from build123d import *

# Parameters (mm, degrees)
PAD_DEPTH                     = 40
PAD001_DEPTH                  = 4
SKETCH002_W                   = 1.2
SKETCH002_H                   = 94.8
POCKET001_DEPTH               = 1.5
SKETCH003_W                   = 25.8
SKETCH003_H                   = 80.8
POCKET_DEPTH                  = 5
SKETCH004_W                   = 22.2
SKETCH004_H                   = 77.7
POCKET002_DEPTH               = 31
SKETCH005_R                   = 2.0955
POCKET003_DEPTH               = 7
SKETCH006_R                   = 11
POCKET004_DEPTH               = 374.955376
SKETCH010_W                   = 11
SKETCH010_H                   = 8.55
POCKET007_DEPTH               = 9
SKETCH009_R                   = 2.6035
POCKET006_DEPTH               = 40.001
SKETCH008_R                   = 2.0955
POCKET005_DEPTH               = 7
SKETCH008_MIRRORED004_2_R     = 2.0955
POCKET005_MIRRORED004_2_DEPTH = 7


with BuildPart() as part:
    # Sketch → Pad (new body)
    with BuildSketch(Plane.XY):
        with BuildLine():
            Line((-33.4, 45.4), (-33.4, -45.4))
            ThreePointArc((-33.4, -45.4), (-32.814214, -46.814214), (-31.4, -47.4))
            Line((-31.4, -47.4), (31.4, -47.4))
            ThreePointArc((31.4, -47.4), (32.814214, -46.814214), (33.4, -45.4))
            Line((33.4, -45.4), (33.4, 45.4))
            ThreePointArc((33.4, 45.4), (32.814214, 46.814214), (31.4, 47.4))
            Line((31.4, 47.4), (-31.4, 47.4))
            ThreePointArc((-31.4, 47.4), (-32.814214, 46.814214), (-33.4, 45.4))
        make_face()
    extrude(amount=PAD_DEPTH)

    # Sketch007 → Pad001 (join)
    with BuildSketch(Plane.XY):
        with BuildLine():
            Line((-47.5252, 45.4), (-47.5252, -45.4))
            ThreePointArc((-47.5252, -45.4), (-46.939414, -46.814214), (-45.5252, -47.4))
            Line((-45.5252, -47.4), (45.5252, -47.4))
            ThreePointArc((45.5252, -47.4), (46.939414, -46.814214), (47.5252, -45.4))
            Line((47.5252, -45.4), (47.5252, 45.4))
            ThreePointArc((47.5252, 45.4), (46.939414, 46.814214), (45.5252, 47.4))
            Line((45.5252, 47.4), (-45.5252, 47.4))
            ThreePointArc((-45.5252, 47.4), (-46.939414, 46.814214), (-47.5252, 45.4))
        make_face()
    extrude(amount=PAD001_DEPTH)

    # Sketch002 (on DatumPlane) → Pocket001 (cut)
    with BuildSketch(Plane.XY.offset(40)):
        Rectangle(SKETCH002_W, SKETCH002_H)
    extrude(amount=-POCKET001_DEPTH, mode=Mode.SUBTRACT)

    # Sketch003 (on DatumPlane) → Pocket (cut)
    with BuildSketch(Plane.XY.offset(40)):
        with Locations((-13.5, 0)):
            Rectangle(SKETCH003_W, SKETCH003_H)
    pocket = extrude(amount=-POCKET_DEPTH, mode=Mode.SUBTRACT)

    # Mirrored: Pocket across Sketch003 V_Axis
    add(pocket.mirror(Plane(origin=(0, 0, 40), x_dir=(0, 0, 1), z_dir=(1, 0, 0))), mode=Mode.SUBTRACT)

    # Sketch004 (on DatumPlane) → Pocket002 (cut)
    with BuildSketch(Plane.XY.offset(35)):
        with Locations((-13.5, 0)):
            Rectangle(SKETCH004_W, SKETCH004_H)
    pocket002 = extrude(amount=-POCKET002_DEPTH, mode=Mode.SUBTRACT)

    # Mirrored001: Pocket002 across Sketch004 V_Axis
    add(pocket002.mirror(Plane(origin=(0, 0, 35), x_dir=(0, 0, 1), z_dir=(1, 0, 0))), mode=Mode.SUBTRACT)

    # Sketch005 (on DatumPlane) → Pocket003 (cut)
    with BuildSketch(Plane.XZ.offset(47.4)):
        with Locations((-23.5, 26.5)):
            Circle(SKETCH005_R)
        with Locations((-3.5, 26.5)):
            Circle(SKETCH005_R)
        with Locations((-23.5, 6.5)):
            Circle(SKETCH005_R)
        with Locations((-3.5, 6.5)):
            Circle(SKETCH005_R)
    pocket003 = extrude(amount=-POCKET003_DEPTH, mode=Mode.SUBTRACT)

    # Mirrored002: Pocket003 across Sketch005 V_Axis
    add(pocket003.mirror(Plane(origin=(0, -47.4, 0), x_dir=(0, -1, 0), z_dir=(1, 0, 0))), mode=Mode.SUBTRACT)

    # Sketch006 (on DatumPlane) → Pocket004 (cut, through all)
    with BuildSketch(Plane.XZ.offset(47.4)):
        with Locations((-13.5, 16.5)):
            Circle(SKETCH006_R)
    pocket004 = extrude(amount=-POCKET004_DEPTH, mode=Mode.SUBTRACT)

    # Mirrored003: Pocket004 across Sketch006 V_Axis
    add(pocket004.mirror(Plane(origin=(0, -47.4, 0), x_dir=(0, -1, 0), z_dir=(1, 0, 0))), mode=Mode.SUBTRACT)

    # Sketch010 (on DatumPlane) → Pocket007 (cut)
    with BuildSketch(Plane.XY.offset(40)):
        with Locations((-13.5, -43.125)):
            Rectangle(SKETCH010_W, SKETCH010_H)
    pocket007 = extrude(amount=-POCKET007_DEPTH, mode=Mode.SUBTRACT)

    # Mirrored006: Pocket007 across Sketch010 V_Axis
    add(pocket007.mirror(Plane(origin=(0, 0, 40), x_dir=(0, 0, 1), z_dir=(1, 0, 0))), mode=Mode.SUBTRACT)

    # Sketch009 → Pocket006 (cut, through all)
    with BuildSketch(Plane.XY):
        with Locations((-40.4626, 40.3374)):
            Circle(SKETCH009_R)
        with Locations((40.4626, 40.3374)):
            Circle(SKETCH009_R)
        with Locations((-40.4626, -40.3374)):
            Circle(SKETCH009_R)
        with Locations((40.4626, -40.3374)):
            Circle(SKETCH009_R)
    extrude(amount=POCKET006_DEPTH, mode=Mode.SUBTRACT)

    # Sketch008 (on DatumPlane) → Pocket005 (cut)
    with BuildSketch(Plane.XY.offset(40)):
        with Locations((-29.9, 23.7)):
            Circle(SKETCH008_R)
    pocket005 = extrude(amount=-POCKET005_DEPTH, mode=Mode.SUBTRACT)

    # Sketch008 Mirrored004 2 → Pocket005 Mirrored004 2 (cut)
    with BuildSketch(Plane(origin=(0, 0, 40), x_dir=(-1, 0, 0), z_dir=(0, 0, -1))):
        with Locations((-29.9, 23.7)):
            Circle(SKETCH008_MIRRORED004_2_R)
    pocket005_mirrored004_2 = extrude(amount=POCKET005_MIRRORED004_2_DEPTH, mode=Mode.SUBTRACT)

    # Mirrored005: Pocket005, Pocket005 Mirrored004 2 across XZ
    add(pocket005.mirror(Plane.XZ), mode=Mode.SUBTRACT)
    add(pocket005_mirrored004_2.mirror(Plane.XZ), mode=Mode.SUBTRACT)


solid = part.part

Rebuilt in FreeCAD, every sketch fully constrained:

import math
import FreeCAD as App
import Part
import Sketcher

V = App.Vector
Q = App.Units.Quantity

doc = App.newDocument("Part")
params = doc.addObject("Spreadsheet::Sheet", "Params")
for row, (alias, value) in enumerate([
    ("sketch1_radius", "1.999999 mm"),
    ("sketch1_width", "62.8 mm"),
    ("sketch1_height", "90.8 mm"),
    ("pad1_length", "40 mm"),
    ("sketch2_radius", "1.999999 mm"),
    ("sketch2_height", "90.8 mm"),
    ("pad2_length", "4 mm"),
    ("sketch3_width", "1.2 mm"),
    ("sketch3_height", "94.8 mm"),
    ("pocket1_length", "1.5 mm"),
    ("sketch4_width", "25.8 mm"),
    ("sketch4_height", "80.8 mm"),
    ("pocket2_length", "5 mm"),
    ("sketch5_width", "22.2 mm"),
    ("sketch5_height", "77.7 mm"),
    ("pocket3_length", "31 mm"),
    ("pocket4_length", "7 mm"),
    ("sketch7_diameter", "22 mm"),
    ("sketch8_width", "11 mm"),
    ("sketch8_height", "8.55 mm"),
    ("pocket6_length", "9 mm"),
    ("pocket8_length", "7 mm"),
    ("pocket9_length", "7 mm"),
], start=1):
    params.set(f"A{row}", alias)
    params.set(f"B{row}", "=" + value)
    params.setAlias(f"B{row}", alias)

body = doc.addObject("PartDesign::Body", "Body")

# Sketch on XY plane
sketch1 = body.newObject("Sketcher::SketchObject", "Sketch")
sketch1.AttachmentSupport = (doc.getObject("XY_Plane"), [""])
sketch1.MapMode = "FlatFace"
sketch1.addGeometry(Part.LineSegment(V(-33.4, 45.4, 0), V(-33.4, -45.4, 0)), False)
sketch1.addGeometry(Part.ArcOfCircle(Part.Circle(V(-31.4, -45.4, 0), V(0, 0, 1), 2), math.radians(180), math.radians(270)), False)
sketch1.addGeometry(Part.LineSegment(V(-31.4, -47.4, 0), V(31.4, -47.4, 0)), False)
sketch1.addGeometry(Part.ArcOfCircle(Part.Circle(V(31.4, -45.4, 0), V(0, 0, 1), 2), math.radians(-90), math.radians(0)), False)
sketch1.addGeometry(Part.LineSegment(V(33.4, -45.4, 0), V(33.4, 45.4, 0)), False)
sketch1.addGeometry(Part.ArcOfCircle(Part.Circle(V(31.4, 45.4, 0), V(0, 0, 1), 2), math.radians(0), math.radians(90)), False)
sketch1.addGeometry(Part.LineSegment(V(31.4, 47.4, 0), V(-31.4, 47.4, 0)), False)
sketch1.addGeometry(Part.ArcOfCircle(Part.Circle(V(-31.4, 45.4, 0), V(0, 0, 1), 2), math.radians(90), math.radians(180)), False)
sketch1.addConstraint(Sketcher.Constraint("Tangent", 0, 2, 1, 1))
sketch1.addConstraint(Sketcher.Constraint("Tangent", 1, 2, 2, 1))
sketch1.addConstraint(Sketcher.Constraint("Tangent", 2, 2, 3, 1))
sketch1.addConstraint(Sketcher.Constraint("Tangent", 3, 2, 4, 1))
sketch1.addConstraint(Sketcher.Constraint("Tangent", 4, 2, 5, 1))
sketch1.addConstraint(Sketcher.Constraint("Tangent", 5, 2, 6, 1))
sketch1.addConstraint(Sketcher.Constraint("Tangent", 6, 2, 7, 1))
sketch1.addConstraint(Sketcher.Constraint("Tangent", 7, 2, 0, 1))
sketch1.addConstraint(Sketcher.Constraint("Vertical", 0))
sketch1.addConstraint(Sketcher.Constraint("Horizontal", 2))
sketch1.addConstraint(Sketcher.Constraint("Vertical", 4))
sketch1.addConstraint(Sketcher.Constraint("Horizontal", 6))
sketch1.addConstraint(Sketcher.Constraint("Equal", 1, 3))
sketch1.addConstraint(Sketcher.Constraint("Equal", 3, 5))
sketch1.addConstraint(Sketcher.Constraint("Equal", 5, 7))
sketch1.addConstraint(Sketcher.Constraint("Symmetric", 1, 3, 5, 3, -1, 1))
sketch1.addConstraint(Sketcher.Constraint("Radius", 1, Q("1.999999 mm")))
sketch1.addConstraint(Sketcher.Constraint("DistanceX", 2, 1, 2, 2, Q("62.8 mm")))
sketch1.addConstraint(Sketcher.Constraint("DistanceY", 0, 2, 0, 1, Q("90.8 mm")))
sketch1.setExpression("Constraints[16]", "Params.sketch1_radius")
sketch1.setExpression("Constraints[17]", "Params.sketch1_width")
sketch1.setExpression("Constraints[18]", "Params.sketch1_height")
pad1 = body.newObject("PartDesign::Pad", "Pad")
pad1.Profile = sketch1
pad1.setExpression("Length", "Params.pad1_length")

# Sketch on XY plane
sketch2 = body.newObject("Sketcher::SketchObject", "Sketch001")
sketch2.AttachmentSupport = (doc.getObject("XY_Plane"), [""])
sketch2.MapMode = "FlatFace"
sketch2.addGeometry(Part.LineSegment(V(-47.5, 45.4, 0), V(-47.5, -45.4, 0)), False)
sketch2.addGeometry(Part.ArcOfCircle(Part.Circle(V(-45.5, -45.4, 0), V(0, 0, 1), 2), math.radians(180), math.radians(270)), False)
sketch2.addGeometry(Part.LineSegment(V(-45.5, -47.4, 0), V(45.5, -47.4, 0)), False)
sketch2.addGeometry(Part.ArcOfCircle(Part.Circle(V(45.5, -45.4, 0), V(0, 0, 1), 2), math.radians(-90), math.radians(0)), False)
sketch2.addGeometry(Part.LineSegment(V(47.5, -45.4, 0), V(47.5, 45.4, 0)), False)
sketch2.addGeometry(Part.ArcOfCircle(Part.Circle(V(45.5, 45.4, 0), V(0, 0, 1), 2), math.radians(0), math.radians(90)), False)
sketch2.addGeometry(Part.LineSegment(V(45.5, 47.4, 0), V(-45.5, 47.4, 0)), False)
sketch2.addGeometry(Part.ArcOfCircle(Part.Circle(V(-45.5, 45.4, 0), V(0, 0, 1), 2), math.radians(90), math.radians(180)), False)
sketch2.addConstraint(Sketcher.Constraint("Tangent", 0, 2, 1, 1))
sketch2.addConstraint(Sketcher.Constraint("Tangent", 1, 2, 2, 1))
sketch2.addConstraint(Sketcher.Constraint("Tangent", 2, 2, 3, 1))
sketch2.addConstraint(Sketcher.Constraint("Tangent", 3, 2, 4, 1))
sketch2.addConstraint(Sketcher.Constraint("Tangent", 4, 2, 5, 1))
sketch2.addConstraint(Sketcher.Constraint("Tangent", 5, 2, 6, 1))
sketch2.addConstraint(Sketcher.Constraint("Tangent", 6, 2, 7, 1))
sketch2.addConstraint(Sketcher.Constraint("Tangent", 7, 2, 0, 1))
sketch2.addConstraint(Sketcher.Constraint("Vertical", 0))
sketch2.addConstraint(Sketcher.Constraint("Horizontal", 2))
sketch2.addConstraint(Sketcher.Constraint("Vertical", 4))
sketch2.addConstraint(Sketcher.Constraint("Horizontal", 6))
sketch2.addConstraint(Sketcher.Constraint("Equal", 1, 3))
sketch2.addConstraint(Sketcher.Constraint("Equal", 3, 5))
sketch2.addConstraint(Sketcher.Constraint("Equal", 5, 7))
sketch2.addConstraint(Sketcher.Constraint("Symmetric", 1, 3, 5, 3, -1, 1))
sketch2.addConstraint(Sketcher.Constraint("Radius", 1, Q("1.999999 mm")))
sketch2.addConstraint(Sketcher.Constraint("DistanceY", 0, 2, 0, 1, Q("90.8 mm")))
sketch2.addConstraint(Sketcher.Constraint("DistanceX", 2, 1, 2, 2, Q("91.0504 mm")))
sketch2.setExpression("Constraints[16]", "Params.sketch2_radius")
sketch2.setExpression("Constraints[17]", "Params.sketch2_height")
pad2 = body.newObject("PartDesign::Pad", "Pad001")
pad2.Profile = sketch2
pad2.setExpression("Length", "Params.pad2_length")

# Sketch on XY plane
sketch3 = body.newObject("Sketcher::SketchObject", "Sketch002")
sketch3.AttachmentSupport = (doc.getObject("XY_Plane"), [""])
sketch3.MapMode = "FlatFace"
sketch3.AttachmentOffset = App.Placement(V(0, 0, 40), App.Rotation())
sketch3.addGeometry(Part.LineSegment(V(-0.6, 47.4, 0), V(-0.6, -47.4, 0)), False)
sketch3.addGeometry(Part.LineSegment(V(-0.6, -47.4, 0), V(0.6, -47.4, 0)), False)
sketch3.addGeometry(Part.LineSegment(V(0.6, -47.4, 0), V(0.6, 47.4, 0)), False)
sketch3.addGeometry(Part.LineSegment(V(0.6, 47.4, 0), V(-0.6, 47.4, 0)), False)
sketch3.addConstraint(Sketcher.Constraint("Coincident", 0, 2, 1, 1))
sketch3.addConstraint(Sketcher.Constraint("Coincident", 1, 2, 2, 1))
sketch3.addConstraint(Sketcher.Constraint("Coincident", 2, 2, 3, 1))
sketch3.addConstraint(Sketcher.Constraint("Coincident", 3, 2, 0, 1))
sketch3.addConstraint(Sketcher.Constraint("Vertical", 0))
sketch3.addConstraint(Sketcher.Constraint("Horizontal", 1))
sketch3.addConstraint(Sketcher.Constraint("Vertical", 2))
sketch3.addConstraint(Sketcher.Constraint("Horizontal", 3))
sketch3.addConstraint(Sketcher.Constraint("Symmetric", 0, 2, 2, 2, -1, 1))
sketch3.addConstraint(Sketcher.Constraint("DistanceX", 1, 1, 1, 2, Q("1.2 mm")))
sketch3.addConstraint(Sketcher.Constraint("DistanceY", 0, 2, 0, 1, Q("94.8 mm")))
sketch3.setExpression("Constraints[9]", "Params.sketch3_width")
sketch3.setExpression("Constraints[10]", "Params.sketch3_height")
pocket1 = body.newObject("PartDesign::Pocket", "Pocket")
pocket1.Profile = sketch3
pocket1.setExpression("Length", "Params.pocket1_length")

# Sketch on XY plane
sketch4 = body.newObject("Sketcher::SketchObject", "Sketch003")
sketch4.AttachmentSupport = (doc.getObject("XY_Plane"), [""])
sketch4.MapMode = "FlatFace"
sketch4.AttachmentOffset = App.Placement(V(0, 0, 40), App.Rotation())
sketch4.addGeometry(Part.LineSegment(V(-26, 40, 0), V(-26, -40, 0)), False)
sketch4.addGeometry(Part.LineSegment(V(-26, -40, 0), V(-1, -40, 0)), False)
sketch4.addGeometry(Part.LineSegment(V(-1, -40, 0), V(-1, 40, 0)), False)
sketch4.addGeometry(Part.LineSegment(V(-1, 40, 0), V(-26, 40, 0)), False)
sketch4.addConstraint(Sketcher.Constraint("Coincident", 0, 2, 1, 1))
sketch4.addConstraint(Sketcher.Constraint("Coincident", 1, 2, 2, 1))
sketch4.addConstraint(Sketcher.Constraint("Coincident", 2, 2, 3, 1))
sketch4.addConstraint(Sketcher.Constraint("Coincident", 3, 2, 0, 1))
sketch4.addConstraint(Sketcher.Constraint("Vertical", 0))
sketch4.addConstraint(Sketcher.Constraint("Horizontal", 1))
sketch4.addConstraint(Sketcher.Constraint("Vertical", 2))
sketch4.addConstraint(Sketcher.Constraint("Horizontal", 3))
sketch4.addConstraint(Sketcher.Constraint("DistanceX", 1, 1, 1, 2, Q("25.8 mm")))
sketch4.addConstraint(Sketcher.Constraint("DistanceY", 0, 2, 0, 1, Q("80.8 mm")))
sketch4.addConstraint(Sketcher.Constraint("DistanceX", 0, 2, -1, 1, Q("26.4 mm")))
sketch4.addConstraint(Sketcher.Constraint("DistanceY", 0, 2, -1, 1, Q("40.4 mm")))
sketch4.setExpression("Constraints[8]", "Params.sketch4_width")
sketch4.setExpression("Constraints[9]", "Params.sketch4_height")
pocket2 = body.newObject("PartDesign::Pocket", "Pocket001")
pocket2.Profile = sketch4
pocket2.setExpression("Length", "Params.pocket2_length")
doc.recompute()

mirrored = body.newObject("PartDesign::Mirrored", "Mirrored")
mirrored.Originals = [pocket2]
mirrored.MirrorPlane = (doc.getObject("YZ_Plane"), [""])
body.Tip = mirrored

# Sketch on XY plane
sketch5 = body.newObject("Sketcher::SketchObject", "Sketch004")
sketch5.AttachmentSupport = (doc.getObject("XY_Plane"), [""])
sketch5.MapMode = "FlatFace"
sketch5.AttachmentOffset = App.Placement(V(0, 0, 35), App.Rotation())
sketch5.addGeometry(Part.LineSegment(V(-25, 39, 0), V(-25, -39, 0)), False)
sketch5.addGeometry(Part.LineSegment(V(-25, -39, 0), V(-2, -39, 0)), False)
sketch5.addGeometry(Part.LineSegment(V(-2, -39, 0), V(-2, 39, 0)), False)
sketch5.addGeometry(Part.LineSegment(V(-2, 39, 0), V(-25, 39, 0)), False)
sketch5.addConstraint(Sketcher.Constraint("Coincident", 0, 2, 1, 1))
sketch5.addConstraint(Sketcher.Constraint("Coincident", 1, 2, 2, 1))
sketch5.addConstraint(Sketcher.Constraint("Coincident", 2, 2, 3, 1))
sketch5.addConstraint(Sketcher.Constraint("Coincident", 3, 2, 0, 1))
sketch5.addConstraint(Sketcher.Constraint("Vertical", 0))
sketch5.addConstraint(Sketcher.Constraint("Horizontal", 1))
sketch5.addConstraint(Sketcher.Constraint("Vertical", 2))
sketch5.addConstraint(Sketcher.Constraint("Horizontal", 3))
sketch5.addConstraint(Sketcher.Constraint("DistanceX", 1, 1, 1, 2, Q("22.2 mm")))
sketch5.addConstraint(Sketcher.Constraint("DistanceY", 0, 2, 0, 1, Q("77.7 mm")))
sketch5.addConstraint(Sketcher.Constraint("DistanceX", 0, 2, -1, 1, Q("24.6 mm")))
sketch5.addConstraint(Sketcher.Constraint("DistanceY", 0, 2, -1, 1, Q("38.85 mm")))
sketch5.setExpression("Constraints[8]", "Params.sketch5_width")
sketch5.setExpression("Constraints[9]", "Params.sketch5_height")
pocket3 = body.newObject("PartDesign::Pocket", "Pocket002")
pocket3.Profile = sketch5
pocket3.setExpression("Length", "Params.pocket3_length")
doc.recompute()

mirrored2 = body.newObject("PartDesign::Mirrored", "Mirrored001")
mirrored2.Originals = [pocket3]
mirrored2.MirrorPlane = (doc.getObject("YZ_Plane"), [""])
body.Tip = mirrored2

# Sketch on XZ plane
sketch6 = body.newObject("Sketcher::SketchObject", "Sketch005")
sketch6.AttachmentSupport = (doc.getObject("XZ_Plane"), [""])
sketch6.MapMode = "FlatFace"
sketch6.AttachmentOffset = App.Placement(V(0, 0, 47.4), App.Rotation())
sketch6.addGeometry(Part.Circle(V(-23.5, 26.5, 0), V(0, 0, 1), 2.1), False)
sketch6.addGeometry(Part.Circle(V(-3.5, 26.5, 0), V(0, 0, 1), 2.1), False)
sketch6.addGeometry(Part.Circle(V(-23.5, 6.5, 0), V(0, 0, 1), 2.1), False)
sketch6.addGeometry(Part.Circle(V(-3.5, 6.5, 0), V(0, 0, 1), 2.1), False)
sketch6.addConstraint(Sketcher.Constraint("Equal", 0, 1))
sketch6.addConstraint(Sketcher.Constraint("Equal", 1, 2))
sketch6.addConstraint(Sketcher.Constraint("Equal", 2, 3))
sketch6.addConstraint(Sketcher.Constraint("Horizontal", 0, 3, 1, 3))
sketch6.addConstraint(Sketcher.Constraint("Horizontal", 2, 3, 3, 3))
sketch6.addConstraint(Sketcher.Constraint("Vertical", 0, 3, 2, 3))
sketch6.addConstraint(Sketcher.Constraint("Vertical", 1, 3, 3, 3))
sketch6.addConstraint(Sketcher.Constraint("Diameter", 0, Q("4.191 mm")))
sketch6.addConstraint(Sketcher.Constraint("DistanceX", 0, 3, 1, 3, Q("20 mm")))
sketch6.addConstraint(Sketcher.Constraint("DistanceY", 2, 3, 0, 3, Q("20 mm")))
sketch6.addConstraint(Sketcher.Constraint("DistanceX", 0, 3, -1, 1, Q("23.5 mm")))
sketch6.addConstraint(Sketcher.Constraint("DistanceY", -1, 1, 0, 3, Q("26.5 mm")))
pocket4 = body.newObject("PartDesign::Pocket", "Pocket003")
pocket4.Profile = sketch6
pocket4.setExpression("Length", "Params.pocket4_length")
doc.recompute()

mirrored3 = body.newObject("PartDesign::Mirrored", "Mirrored002")
mirrored3.Originals = [pocket4]
mirrored3.MirrorPlane = (doc.getObject("YZ_Plane"), [""])
body.Tip = mirrored3

# Sketch on XZ plane
sketch7 = body.newObject("Sketcher::SketchObject", "Sketch006")
sketch7.AttachmentSupport = (doc.getObject("XZ_Plane"), [""])
sketch7.MapMode = "FlatFace"
sketch7.AttachmentOffset = App.Placement(V(0, 0, 47.4), App.Rotation())
sketch7.addGeometry(Part.Circle(V(-14, 16, 0), V(0, 0, 1), 11), False)
sketch7.addConstraint(Sketcher.Constraint("Diameter", 0, Q("22 mm")))
sketch7.addConstraint(Sketcher.Constraint("DistanceX", 0, 3, -1, 1, Q("13.5 mm")))
sketch7.addConstraint(Sketcher.Constraint("DistanceY", -1, 1, 0, 3, Q("16.5 mm")))
sketch7.setExpression("Constraints[0]", "Params.sketch7_diameter")
pocket5 = body.newObject("PartDesign::Pocket", "Pocket004")
pocket5.Profile = sketch7
pocket5.Type = "ThroughAll"
doc.recompute()

mirrored4 = body.newObject("PartDesign::Mirrored", "Mirrored003")
mirrored4.Originals = [pocket5]
mirrored4.MirrorPlane = (doc.getObject("YZ_Plane"), [""])
body.Tip = mirrored4

# Sketch on XY plane
sketch8 = body.newObject("Sketcher::SketchObject", "Sketch007")
sketch8.AttachmentSupport = (doc.getObject("XY_Plane"), [""])
sketch8.MapMode = "FlatFace"
sketch8.AttachmentOffset = App.Placement(V(0, 0, 40), App.Rotation())
sketch8.addGeometry(Part.LineSegment(V(-19, -39, 0), V(-19, -47, 0)), False)
sketch8.addGeometry(Part.LineSegment(V(-19, -47, 0), V(-8, -47, 0)), False)
sketch8.addGeometry(Part.LineSegment(V(-8, -47, 0), V(-8, -39, 0)), False)
sketch8.addGeometry(Part.LineSegment(V(-8, -39, 0), V(-19, -39, 0)), False)
sketch8.addConstraint(Sketcher.Constraint("Coincident", 0, 2, 1, 1))
sketch8.addConstraint(Sketcher.Constraint("Coincident", 1, 2, 2, 1))
sketch8.addConstraint(Sketcher.Constraint("Coincident", 2, 2, 3, 1))
sketch8.addConstraint(Sketcher.Constraint("Coincident", 3, 2, 0, 1))
sketch8.addConstraint(Sketcher.Constraint("Vertical", 0))
sketch8.addConstraint(Sketcher.Constraint("Horizontal", 1))
sketch8.addConstraint(Sketcher.Constraint("Vertical", 2))
sketch8.addConstraint(Sketcher.Constraint("Horizontal", 3))
sketch8.addConstraint(Sketcher.Constraint("DistanceX", 1, 1, 1, 2, Q("11 mm")))
sketch8.addConstraint(Sketcher.Constraint("DistanceX", 0, 2, -1, 1, Q("19 mm")))
sketch8.addConstraint(Sketcher.Constraint("DistanceY", 0, 2, 0, 1, Q("8.55 mm")))
sketch8.addConstraint(Sketcher.Constraint("DistanceY", 0, 2, -1, 1, Q("47.4 mm")))
sketch8.setExpression("Constraints[8]", "Params.sketch8_width")
sketch8.setExpression("Constraints[10]", "Params.sketch8_height")
pocket6 = body.newObject("PartDesign::Pocket", "Pocket005")
pocket6.Profile = sketch8
pocket6.setExpression("Length", "Params.pocket6_length")
doc.recompute()

mirrored5 = body.newObject("PartDesign::Mirrored", "Mirrored004")
mirrored5.Originals = [pocket6]
mirrored5.MirrorPlane = (doc.getObject("YZ_Plane"), [""])
body.Tip = mirrored5

# Sketch on XY plane
sketch9 = body.newObject("Sketcher::SketchObject", "Sketch008")
sketch9.AttachmentSupport = (doc.getObject("XY_Plane"), [""])
sketch9.MapMode = "FlatFace"
sketch9.addGeometry(Part.Circle(V(-40.5, 40.3, 0), V(0, 0, 1), 2.6), False)
sketch9.addGeometry(Part.Circle(V(40.5, 40.3, 0), V(0, 0, 1), 2.6), False)
sketch9.addGeometry(Part.Circle(V(-40.5, -40.3, 0), V(0, 0, 1), 2.6), False)
sketch9.addGeometry(Part.Circle(V(40.5, -40.3, 0), V(0, 0, 1), 2.6), False)
sketch9.addConstraint(Sketcher.Constraint("Equal", 0, 1))
sketch9.addConstraint(Sketcher.Constraint("Equal", 1, 2))
sketch9.addConstraint(Sketcher.Constraint("Equal", 2, 3))
sketch9.addConstraint(Sketcher.Constraint("Symmetric", 1, 3, 2, 3, -1, 1))
sketch9.addConstraint(Sketcher.Constraint("Symmetric", 0, 3, 3, 3, -1, 1))
sketch9.addConstraint(Sketcher.Constraint("Symmetric", 0, 3, 1, 3, -2))
sketch9.addConstraint(Sketcher.Constraint("Diameter", 0, Q("5.207 mm")))
sketch9.addConstraint(Sketcher.Constraint("DistanceX", 0, 3, -1, 1, Q("40.4626 mm")))
sketch9.addConstraint(Sketcher.Constraint("DistanceY", -1, 1, 0, 3, Q("40.3374 mm")))
pocket7 = body.newObject("PartDesign::Pocket", "Pocket006")
pocket7.Profile = sketch9
pocket7.Type = "ThroughAll"
pocket7.Reversed = True

# Sketch on XY plane
sketch10 = body.newObject("Sketcher::SketchObject", "Sketch009")
sketch10.AttachmentSupport = (doc.getObject("XY_Plane"), [""])
sketch10.MapMode = "FlatFace"
sketch10.AttachmentOffset = App.Placement(V(0, 0, 40), App.Rotation())
sketch10.addGeometry(Part.Circle(V(-29.9, 23.7, 0), V(0, 0, 1), 2.1), False)
sketch10.addConstraint(Sketcher.Constraint("Diameter", 0, Q("4.191 mm")))
sketch10.addConstraint(Sketcher.Constraint("DistanceX", 0, 3, -1, 1, Q("29.9 mm")))
sketch10.addConstraint(Sketcher.Constraint("DistanceY", -1, 1, 0, 3, Q("23.7 mm")))
pocket8 = body.newObject("PartDesign::Pocket", "Pocket007")
pocket8.Profile = sketch10
pocket8.setExpression("Length", "Params.pocket8_length")

# Sketch on XY plane
sketch11 = body.newObject("Sketcher::SketchObject", "Sketch010")
sketch11.AttachmentSupport = (doc.getObject("XY_Plane"), [""])
sketch11.MapMode = "FlatFace"
sketch11.AttachmentOffset = App.Placement(V(0, 0, 40), App.Rotation())
sketch11.addGeometry(Part.Circle(V(29.9, 23.7, 0), V(0, 0, 1), 2.1), False)
sketch11.addConstraint(Sketcher.Constraint("Diameter", 0, Q("4.191 mm")))
sketch11.addConstraint(Sketcher.Constraint("DistanceX", -1, 1, 0, 3, Q("29.9 mm")))
sketch11.addConstraint(Sketcher.Constraint("DistanceY", -1, 1, 0, 3, Q("23.7 mm")))
pocket9 = body.newObject("PartDesign::Pocket", "Pocket008")
pocket9.Profile = sketch11
pocket9.setExpression("Length", "Params.pocket9_length")
doc.recompute()

mirrored6 = body.newObject("PartDesign::Mirrored", "Mirrored005")
mirrored6.Originals = [pocket8, pocket9]
mirrored6.MirrorPlane = (doc.getObject("XZ_Plane"), [""])
body.Tip = mirrored6

doc.recompute()
